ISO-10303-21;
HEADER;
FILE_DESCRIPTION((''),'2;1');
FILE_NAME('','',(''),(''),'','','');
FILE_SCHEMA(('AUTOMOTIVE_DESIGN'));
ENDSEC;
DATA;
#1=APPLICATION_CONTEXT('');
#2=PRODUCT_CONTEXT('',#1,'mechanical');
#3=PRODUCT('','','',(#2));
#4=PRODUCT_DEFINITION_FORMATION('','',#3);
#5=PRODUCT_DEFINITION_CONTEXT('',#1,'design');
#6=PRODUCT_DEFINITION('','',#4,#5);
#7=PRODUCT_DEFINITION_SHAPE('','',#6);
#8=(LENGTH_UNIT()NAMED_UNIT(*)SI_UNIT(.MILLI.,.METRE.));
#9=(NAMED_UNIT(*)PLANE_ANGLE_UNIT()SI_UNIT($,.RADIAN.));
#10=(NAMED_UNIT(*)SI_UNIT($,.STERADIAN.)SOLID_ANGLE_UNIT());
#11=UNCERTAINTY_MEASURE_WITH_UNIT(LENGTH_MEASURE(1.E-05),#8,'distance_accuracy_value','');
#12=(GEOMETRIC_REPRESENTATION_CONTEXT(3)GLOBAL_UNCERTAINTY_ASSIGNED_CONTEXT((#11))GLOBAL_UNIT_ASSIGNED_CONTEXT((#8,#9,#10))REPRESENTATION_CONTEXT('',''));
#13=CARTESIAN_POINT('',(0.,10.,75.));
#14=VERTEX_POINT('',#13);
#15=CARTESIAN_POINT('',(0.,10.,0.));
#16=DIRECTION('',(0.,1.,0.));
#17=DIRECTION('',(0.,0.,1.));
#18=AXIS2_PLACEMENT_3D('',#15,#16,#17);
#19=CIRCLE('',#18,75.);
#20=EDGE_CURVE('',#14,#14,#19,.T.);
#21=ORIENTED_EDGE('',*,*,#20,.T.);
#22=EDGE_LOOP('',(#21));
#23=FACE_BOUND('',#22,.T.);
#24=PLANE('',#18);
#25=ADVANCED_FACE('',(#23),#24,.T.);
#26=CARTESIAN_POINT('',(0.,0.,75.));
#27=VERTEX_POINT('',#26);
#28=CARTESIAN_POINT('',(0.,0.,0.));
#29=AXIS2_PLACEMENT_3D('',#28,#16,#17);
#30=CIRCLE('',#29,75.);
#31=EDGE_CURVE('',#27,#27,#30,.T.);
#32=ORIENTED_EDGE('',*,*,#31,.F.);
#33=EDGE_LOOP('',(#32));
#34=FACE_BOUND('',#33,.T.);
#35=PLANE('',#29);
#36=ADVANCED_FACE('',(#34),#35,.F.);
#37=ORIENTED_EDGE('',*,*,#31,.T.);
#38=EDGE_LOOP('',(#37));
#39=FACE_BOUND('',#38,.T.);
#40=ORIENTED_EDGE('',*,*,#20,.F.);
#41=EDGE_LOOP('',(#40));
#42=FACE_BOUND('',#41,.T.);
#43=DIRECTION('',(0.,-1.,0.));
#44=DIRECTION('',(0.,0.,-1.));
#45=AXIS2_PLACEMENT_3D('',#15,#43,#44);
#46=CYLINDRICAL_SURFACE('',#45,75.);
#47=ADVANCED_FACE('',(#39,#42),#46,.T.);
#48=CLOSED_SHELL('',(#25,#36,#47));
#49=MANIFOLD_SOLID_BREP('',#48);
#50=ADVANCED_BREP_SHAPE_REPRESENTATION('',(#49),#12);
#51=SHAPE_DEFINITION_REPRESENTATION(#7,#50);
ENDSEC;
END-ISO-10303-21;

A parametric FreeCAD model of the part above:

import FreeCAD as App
import Part
import Sketcher
from FreeCAD import Vector

doc = App.newDocument("Part")
body = doc.addObject("PartDesign::Body", "Body")

# Sketch on XZ plane
sketch1 = body.newObject("Sketcher::SketchObject", "Sketch")
sketch1.AttachmentSupport = (doc.getObject("XZ_Plane"), [""])
sketch1.MapMode = "FlatFace"
sketch1.addGeometry(Part.Circle(Vector(0, 0, 0), Vector(0, 0, 1), 75), False)
sketch1.addConstraint(Sketcher.Constraint("Coincident", 0, 3, -1, 1))
sketch1.addConstraint(Sketcher.Constraint("Diameter", 0, 150.0))
pad1 = body.newObject("PartDesign::Pad", "Pad")
pad1.Profile = sketch1
pad1.Length = 10
pad1.Reversed = True

doc.recompute()
